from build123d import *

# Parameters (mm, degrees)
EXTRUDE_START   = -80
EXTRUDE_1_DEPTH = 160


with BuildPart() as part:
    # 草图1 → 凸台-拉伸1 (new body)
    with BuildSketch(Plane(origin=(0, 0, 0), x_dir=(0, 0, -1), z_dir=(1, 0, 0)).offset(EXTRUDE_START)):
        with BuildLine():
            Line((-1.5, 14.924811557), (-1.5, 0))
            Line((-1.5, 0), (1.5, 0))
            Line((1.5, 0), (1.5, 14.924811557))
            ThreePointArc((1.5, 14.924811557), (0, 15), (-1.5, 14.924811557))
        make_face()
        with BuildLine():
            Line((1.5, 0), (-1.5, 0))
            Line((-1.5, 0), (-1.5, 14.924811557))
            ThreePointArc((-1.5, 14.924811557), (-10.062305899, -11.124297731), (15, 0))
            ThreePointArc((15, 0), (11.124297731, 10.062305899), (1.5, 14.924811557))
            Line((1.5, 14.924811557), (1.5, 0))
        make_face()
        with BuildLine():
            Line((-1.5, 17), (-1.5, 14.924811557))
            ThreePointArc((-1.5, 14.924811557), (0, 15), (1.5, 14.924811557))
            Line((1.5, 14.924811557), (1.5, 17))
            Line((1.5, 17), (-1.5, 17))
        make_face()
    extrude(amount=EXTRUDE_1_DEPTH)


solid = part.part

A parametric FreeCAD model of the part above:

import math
import FreeCAD as App
import Part
import Sketcher
Q = App.Units.Quantity

doc = App.newDocument("Part")
params = doc.addObject("Spreadsheet::Sheet", "Params")
for row, (alias, value) in enumerate([
    ("sketch1_radius", "15 mm"),
    ("sketch1_height", "3 mm"),
    ("pad1_length", "160 mm"),
], start=1):
    params.set(f"A{row}", alias)
    params.set(f"B{row}", "=" + value)
    params.setAlias(f"B{row}", alias)

body = doc.addObject("PartDesign::Body", "Body")

# Sketch on YZ plane
sketch1 = body.newObject("Sketcher::SketchObject", "Sketch")
sketch1.AttachmentSupport = (doc.getObject("YZ_Plane"), [""])
sketch1.MapMode = "FlatFace"
sketch1.AttachmentOffset = App.Placement(App.Vector(0, 0, -80), App.Rotation())
sketch1.addGeometry(Part.ArcOfCircle(Part.Circle(App.Vector(0, 0, 0), App.Vector(0, 0, 1), 15), math.radians(5.73917), math.radians(270)), False)
sketch1.addGeometry(Part.ArcOfCircle(Part.Circle(App.Vector(0, 0, 0), App.Vector(0, 0, 1), 15), math.radians(-90), math.radians(-5.73917)), False)
sketch1.addGeometry(Part.LineSegment(App.Vector(14.924812, -1.5, 0), App.Vector(17, -1.5, 0)), False)
sketch1.addGeometry(Part.LineSegment(App.Vector(17, -1.5, 0), App.Vector(17, 1.5, 0)), False)
sketch1.addGeometry(Part.LineSegment(App.Vector(17, 1.5, 0), App.Vector(14.924812, 1.5, 0)), False)
sketch1.addConstraint(Sketcher.Constraint("Tangent", 0, 2, 1, 1))
sketch1.addConstraint(Sketcher.Constraint("Coincident", 1, 2, 2, 1))
sketch1.addConstraint(Sketcher.Constraint("Coincident", 2, 2, 3, 1))
sketch1.addConstraint(Sketcher.Constraint("Coincident", 3, 2, 4, 1))
sketch1.addConstraint(Sketcher.Constraint("Coincident", 4, 2, 0, 1))
sketch1.addConstraint(Sketcher.Constraint("Horizontal", 2))
sketch1.addConstraint(Sketcher.Constraint("Vertical", 3))
sketch1.addConstraint(Sketcher.Constraint("Horizontal", 4))
sketch1.addConstraint(Sketcher.Constraint("Coincident", 0, 3, -1, 1))
sketch1.addConstraint(Sketcher.Constraint("Equal", 0, 1))
sketch1.addConstraint(Sketcher.Constraint("PointOnObject", 0, 2, -2))
sketch1.addConstraint(Sketcher.Constraint("Vertical", 1, 2, 4, 2))
sketch1.addConstraint(Sketcher.Constraint("Radius", 0, Q("15 mm")))
sketch1.addConstraint(Sketcher.Constraint("DistanceY", 3, 1, 3, 2, Q("3 mm")))
sketch1.addConstraint(Sketcher.Constraint("DistanceX", -1, 1, 2, 2, Q("17 mm")))
sketch1.setExpression("Constraints[12]", "Params.sketch1_radius")
sketch1.setExpression("Constraints[13]", "Params.sketch1_height")
pad1 = body.newObject("PartDesign::Pad", "Pad")
pad1.Profile = sketch1
pad1.setExpression("Length", "Params.pad1_length")

doc.recompute()
